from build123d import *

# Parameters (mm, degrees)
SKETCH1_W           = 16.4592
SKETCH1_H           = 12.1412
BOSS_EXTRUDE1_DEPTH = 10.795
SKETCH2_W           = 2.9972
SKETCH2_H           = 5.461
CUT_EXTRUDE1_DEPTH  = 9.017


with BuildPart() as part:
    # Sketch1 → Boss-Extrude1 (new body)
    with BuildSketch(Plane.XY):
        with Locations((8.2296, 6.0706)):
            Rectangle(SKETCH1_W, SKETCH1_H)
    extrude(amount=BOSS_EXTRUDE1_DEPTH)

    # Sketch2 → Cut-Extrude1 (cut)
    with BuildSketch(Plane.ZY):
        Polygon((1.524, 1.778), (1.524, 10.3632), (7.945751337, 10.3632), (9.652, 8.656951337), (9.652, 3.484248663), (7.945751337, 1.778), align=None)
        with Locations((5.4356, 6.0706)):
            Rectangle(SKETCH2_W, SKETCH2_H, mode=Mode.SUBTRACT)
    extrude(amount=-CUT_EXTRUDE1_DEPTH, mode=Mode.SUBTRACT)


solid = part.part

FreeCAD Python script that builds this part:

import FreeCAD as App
import Part
import Sketcher

V = App.Vector
Q = App.Units.Quantity

doc = App.newDocument("Part")
body = doc.addObject("PartDesign::Body", "Body")

sketch1 = doc.addObject("Sketcher::SketchObject", "Sketch")
body.addObject(sketch1)
sketch1.AttachmentSupport = (doc.XY_Plane, [""])
sketch1.MapMode = "FlatFace"
sketch1.addGeometry([
    Part.LineSegment(V(0, 12, 0), V(0, 0, 0)),
    Part.LineSegment(V(0, 0, 0), V(16, 0, 0)),
    Part.LineSegment(V(16, 0, 0), V(16, 12, 0)),
    Part.LineSegment(V(16, 12, 0), V(0, 12, 0)),
], False)
sketch1.addConstraint([
    Sketcher.Constraint("Coincident", 0, 2, 1, 1),
    Sketcher.Constraint("Coincident", 1, 2, 2, 1),
    Sketcher.Constraint("Coincident", 2, 2, 3, 1),
    Sketcher.Constraint("Coincident", 3, 2, 0, 1),
    Sketcher.Constraint("Vertical", 0),
    Sketcher.Constraint("Horizontal", 1),
    Sketcher.Constraint("Vertical", 2),
    Sketcher.Constraint("Horizontal", 3),
    Sketcher.Constraint("Coincident", 0, 2, -1, 1),
    Sketcher.Constraint("DistanceX", 1, 1, 1, 2, Q("0.648 in")),
    Sketcher.Constraint("DistanceY", 0, 2, 0, 1, Q("0.478 in")),
])
pad1 = doc.addObject("PartDesign::Pad", "Pad")
body.addObject(pad1)
pad1.Profile = sketch1
pad1.Length = Q("0.425 in")

sketch2 = doc.addObject("Sketcher::SketchObject", "Sketch001")
body.addObject(sketch2)
sketch2.AttachmentSupport = (doc.YZ_Plane, [""])
sketch2.MapMode = "FlatFace"
sketch2.addGeometry([
    Part.LineSegment(V(10.4, 1.5, 0), V(1.8, 1.5, 0)),
    Part.LineSegment(V(1.8, 1.5, 0), V(1.8, 7.9, 0)),
    Part.LineSegment(V(1.8, 7.9, 0), V(3.5, 9.7, 0)),
    Part.LineSegment(V(3.5, 9.7, 0), V(8.7, 9.7, 0)),
    Part.LineSegment(V(8.7, 9.7, 0), V(10.4, 7.9, 0)),
    Part.LineSegment(V(10.4, 7.9, 0), V(10.4, 1.5, 0)),
    Part.LineSegment(V(3.3, 3.9, 0), V(8.8, 3.9, 0)),
    Part.LineSegment(V(8.8, 3.9, 0), V(8.8, 6.9, 0)),
    Part.LineSegment(V(8.8, 6.9, 0), V(3.3, 6.9, 0)),
    Part.LineSegment(V(3.3, 6.9, 0), V(3.3, 3.9, 0)),
], False)
sketch2.addConstraint([
    Sketcher.Constraint("Coincident", 0, 2, 1, 1),
    Sketcher.Constraint("Coincident", 1, 2, 2, 1),
    Sketcher.Constraint("Coincident", 2, 2, 3, 1),
    Sketcher.Constraint("Coincident", 3, 2, 4, 1),
    Sketcher.Constraint("Coincident", 4, 2, 5, 1),
    Sketcher.Constraint("Coincident", 5, 2, 0, 1),
    Sketcher.Constraint("Coincident", 6, 2, 7, 1),
    Sketcher.Constraint("Coincident", 7, 2, 8, 1),
    Sketcher.Constraint("Coincident", 8, 2, 9, 1),
    Sketcher.Constraint("Coincident", 9, 2, 6, 1),
    Sketcher.Constraint("Horizontal", 0),
    Sketcher.Constraint("Vertical", 1),
    Sketcher.Constraint("Horizontal", 3),
    Sketcher.Constraint("Vertical", 5),
    Sketcher.Constraint("Horizontal", 6),
    Sketcher.Constraint("Vertical", 7),
    Sketcher.Constraint("Horizontal", 8),
    Sketcher.Constraint("Vertical", 9),
    Sketcher.Constraint("Perpendicular", 2, 4),
    Sketcher.Constraint("Horizontal", 1, 2, 4, 2),
    Sketcher.Constraint("Equal", 2, 4),
    Sketcher.Constraint("DistanceX", 0, 2, 0, 1, Q("0.338 in")),
    Sketcher.Constraint("DistanceX", 6, 1, 6, 2, Q("0.215 in")),
    Sketcher.Constraint("DistanceY", 7, 1, 7, 2, Q("0.118 in")),
    Sketcher.Constraint("DistanceX", -1, 1, 0, 2, Q("0.07 in")),
    Sketcher.Constraint("DistanceY", -1, 1, 0, 2, Q("0.06 in")),
    Sketcher.Constraint("DistanceY", -1, 1, 2, 2, Q("0.38 in")),
    Sketcher.Constraint("Distance", 2, Q("0.095 in")),
    Sketcher.Constraint("DistanceY", -1, 1, 6, 2, Q("0.155 in")),
    Sketcher.Constraint("DistanceX", -1, 1, 6, 2, Q("0.3465 in")),
])
pocket1 = doc.addObject("PartDesign::Pocket", "Pocket")
body.addObject(pocket1)
pocket1.Profile = sketch2
pocket1.Length = Q("0.355 in")
pocket1.Reversed = True

doc.recompute()
